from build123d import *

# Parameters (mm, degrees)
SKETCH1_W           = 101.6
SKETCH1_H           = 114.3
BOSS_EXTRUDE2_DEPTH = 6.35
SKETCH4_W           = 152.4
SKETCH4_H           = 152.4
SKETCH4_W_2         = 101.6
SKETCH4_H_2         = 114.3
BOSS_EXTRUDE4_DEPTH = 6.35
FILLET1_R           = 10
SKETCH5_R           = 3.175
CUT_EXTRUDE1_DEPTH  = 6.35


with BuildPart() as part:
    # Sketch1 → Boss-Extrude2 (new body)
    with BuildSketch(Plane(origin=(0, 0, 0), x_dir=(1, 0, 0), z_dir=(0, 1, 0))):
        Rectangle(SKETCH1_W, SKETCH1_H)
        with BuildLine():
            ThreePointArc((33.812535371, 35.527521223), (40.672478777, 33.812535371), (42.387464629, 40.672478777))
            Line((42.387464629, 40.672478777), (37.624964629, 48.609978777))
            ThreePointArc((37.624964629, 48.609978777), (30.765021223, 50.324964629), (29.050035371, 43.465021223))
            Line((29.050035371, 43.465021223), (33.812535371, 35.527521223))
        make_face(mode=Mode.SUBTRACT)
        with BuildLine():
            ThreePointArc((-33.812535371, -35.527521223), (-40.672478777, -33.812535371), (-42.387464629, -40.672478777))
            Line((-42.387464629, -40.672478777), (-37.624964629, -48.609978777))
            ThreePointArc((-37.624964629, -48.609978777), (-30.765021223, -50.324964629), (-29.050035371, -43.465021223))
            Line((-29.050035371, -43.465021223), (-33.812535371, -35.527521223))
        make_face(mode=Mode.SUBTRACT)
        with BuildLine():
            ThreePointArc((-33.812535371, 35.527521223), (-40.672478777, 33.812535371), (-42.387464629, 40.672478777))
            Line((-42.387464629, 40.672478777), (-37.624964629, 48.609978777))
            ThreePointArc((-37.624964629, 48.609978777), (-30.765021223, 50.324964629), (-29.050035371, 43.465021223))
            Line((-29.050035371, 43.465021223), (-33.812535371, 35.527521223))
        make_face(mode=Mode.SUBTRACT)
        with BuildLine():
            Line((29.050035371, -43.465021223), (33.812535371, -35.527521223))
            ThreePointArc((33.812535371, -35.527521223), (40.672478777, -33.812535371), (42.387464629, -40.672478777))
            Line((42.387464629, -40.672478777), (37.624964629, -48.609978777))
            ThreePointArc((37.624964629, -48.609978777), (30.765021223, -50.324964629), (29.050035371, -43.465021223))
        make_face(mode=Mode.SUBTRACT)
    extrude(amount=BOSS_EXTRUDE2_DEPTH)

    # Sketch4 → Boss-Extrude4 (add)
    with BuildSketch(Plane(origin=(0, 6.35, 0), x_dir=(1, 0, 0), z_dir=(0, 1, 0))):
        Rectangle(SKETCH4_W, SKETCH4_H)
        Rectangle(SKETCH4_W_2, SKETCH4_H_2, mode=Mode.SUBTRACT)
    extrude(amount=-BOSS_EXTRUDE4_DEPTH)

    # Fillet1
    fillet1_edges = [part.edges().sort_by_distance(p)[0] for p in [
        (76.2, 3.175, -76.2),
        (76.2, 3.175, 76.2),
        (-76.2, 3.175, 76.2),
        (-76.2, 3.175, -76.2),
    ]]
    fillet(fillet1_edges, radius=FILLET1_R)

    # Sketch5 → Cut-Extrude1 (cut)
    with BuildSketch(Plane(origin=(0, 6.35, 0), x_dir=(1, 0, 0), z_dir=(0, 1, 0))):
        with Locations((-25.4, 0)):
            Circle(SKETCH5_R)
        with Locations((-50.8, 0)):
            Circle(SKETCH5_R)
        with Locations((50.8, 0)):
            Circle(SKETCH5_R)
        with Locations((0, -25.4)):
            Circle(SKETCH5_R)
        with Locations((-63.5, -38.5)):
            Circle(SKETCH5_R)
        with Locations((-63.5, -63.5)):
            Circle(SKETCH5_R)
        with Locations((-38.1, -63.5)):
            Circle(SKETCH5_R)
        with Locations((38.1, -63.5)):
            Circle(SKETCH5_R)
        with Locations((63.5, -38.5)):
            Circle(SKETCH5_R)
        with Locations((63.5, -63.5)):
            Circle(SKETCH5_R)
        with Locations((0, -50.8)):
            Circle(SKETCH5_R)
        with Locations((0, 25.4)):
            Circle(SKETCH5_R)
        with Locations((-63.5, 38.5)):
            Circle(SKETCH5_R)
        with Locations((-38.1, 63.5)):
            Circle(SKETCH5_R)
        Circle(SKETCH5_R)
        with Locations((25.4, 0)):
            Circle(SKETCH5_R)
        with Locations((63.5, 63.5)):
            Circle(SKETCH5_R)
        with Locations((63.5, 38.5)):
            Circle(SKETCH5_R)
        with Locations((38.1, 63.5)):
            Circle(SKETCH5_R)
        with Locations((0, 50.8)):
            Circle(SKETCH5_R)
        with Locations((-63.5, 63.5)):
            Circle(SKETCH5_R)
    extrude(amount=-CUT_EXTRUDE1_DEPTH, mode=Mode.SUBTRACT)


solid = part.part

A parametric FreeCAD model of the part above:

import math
import FreeCAD as App
import Part
import Sketcher
from FreeCAD import Vector
Q = App.Units.Quantity


def edges_at(feature, points):
    """Names of the edges that pass closest to the given points."""
    edges = feature.Shape.Edges
    near = lambda p: min(range(len(edges)), key=lambda i: edges[i].distToShape(Part.Vertex(*p))[0])
    return sorted({f"Edge{near(p) + 1}" for p in points})

doc = App.newDocument("Part")
body = doc.addObject("PartDesign::Body", "Body")

# Sketch on XZ plane
sketch1 = body.newObject("Sketcher::SketchObject", "Sketch")
sketch1.AttachmentSupport = (doc.getObject("XZ_Plane"), [""])
sketch1.MapMode = "FlatFace"
sketch1.addGeometry([
    Part.LineSegment(Vector(-51, -57, 0), Vector(-51, 57, 0)),  # 0
    Part.LineSegment(Vector(-51, 57, 0), Vector(51, 57, 0)),  # 1
    Part.LineSegment(Vector(51, 57, 0), Vector(51, -57, 0)),  # 2
    Part.LineSegment(Vector(51, -57, 0), Vector(-51, -57, 0)),  # 3
    Part.ArcOfCircle(Part.Circle(Vector(-38, 38, 0), Vector(0, 0, 1), 5), math.radians(149), math.radians(329)),  # 4
    Part.LineSegment(Vector(-34, 36, 0), Vector(-29, 43, 0)),  # 5
    Part.ArcOfCircle(Part.Circle(Vector(-33, 46, 0), Vector(0, 0, 1), 5), math.radians(-31), math.radians(149)),  # 6
    Part.LineSegment(Vector(-38, 49, 0), Vector(-42, 41, 0)),  # 7
    Part.ArcOfCircle(Part.Circle(Vector(33, 46, 0), Vector(0, 0, 1), 5), math.radians(31), math.radians(211)),  # 8
    Part.LineSegment(Vector(29, 43, 0), Vector(34, 36, 0)),  # 9
    Part.ArcOfCircle(Part.Circle(Vector(38, 38, 0), Vector(0, 0, 1), 5), math.radians(-149), math.radians(31)),  # 10
    Part.LineSegment(Vector(42, 41, 0), Vector(38, 49, 0)),  # 11
    Part.LineSegment(Vector(-29, -43, 0), Vector(-34, -36, 0)),  # 12
    Part.ArcOfCircle(Part.Circle(Vector(-38, -38, 0), Vector(0, 0, 1), 5), math.radians(31), math.radians(211)),  # 13
    Part.LineSegment(Vector(-42, -41, 0), Vector(-38, -49, 0)),  # 14
    Part.ArcOfCircle(Part.Circle(Vector(-33, -46, 0), Vector(0, 0, 1), 5), math.radians(-149), math.radians(31)),  # 15
    Part.ArcOfCircle(Part.Circle(Vector(38, -38, 0), Vector(0, 0, 1), 5), math.radians(-31), math.radians(149)),  # 16
    Part.LineSegment(Vector(34, -36, 0), Vector(29, -43, 0)),  # 17
    Part.ArcOfCircle(Part.Circle(Vector(33, -46, 0), Vector(0, 0, 1), 5), math.radians(149), math.radians(329)),  # 18
    Part.LineSegment(Vector(38, -49, 0), Vector(42, -41, 0)),  # 19
], False)
sketch1.addConstraint([
    Sketcher.Constraint("Coincident", 0, 2, 1, 1),
    Sketcher.Constraint("Coincident", 1, 2, 2, 1),
    Sketcher.Constraint("Coincident", 2, 2, 3, 1),
    Sketcher.Constraint("Coincident", 3, 2, 0, 1),
    Sketcher.Constraint("Tangent", 4, 2, 5, 1),
    Sketcher.Constraint("Tangent", 5, 2, 6, 1),
    Sketcher.Constraint("Tangent", 6, 2, 7, 1),
    Sketcher.Constraint("Tangent", 7, 2, 4, 1),
    Sketcher.Constraint("Tangent", 8, 2, 9, 1),
    Sketcher.Constraint("Tangent", 9, 2, 10, 1),
    Sketcher.Constraint("Tangent", 10, 2, 11, 1),
    Sketcher.Constraint("Tangent", 11, 2, 8, 1),
    Sketcher.Constraint("Tangent", 12, 2, 13, 1),
    Sketcher.Constraint("Tangent", 13, 2, 14, 1),
    Sketcher.Constraint("Tangent", 14, 2, 15, 1),
    Sketcher.Constraint("Tangent", 15, 2, 12, 1),
    Sketcher.Constraint("Tangent", 16, 2, 17, 1),
    Sketcher.Constraint("Tangent", 17, 2, 18, 1),
    Sketcher.Constraint("Tangent", 18, 2, 19, 1),
    Sketcher.Constraint("Tangent", 19, 2, 16, 1),
    Sketcher.Constraint("Vertical", 0),
    Sketcher.Constraint("Horizontal", 1),
    Sketcher.Constraint("Vertical", 2),
    Sketcher.Constraint("Horizontal", 3),
    Sketcher.Constraint("Equal", 4, 6),
    Sketcher.Constraint("Equal", 6, 8),
    Sketcher.Constraint("Equal", 8, 10),
    Sketcher.Constraint("Equal", 10, 13),
    Sketcher.Constraint("Equal", 13, 15),
    Sketcher.Constraint("Equal", 15, 16),
    Sketcher.Constraint("Equal", 16, 18),
    Sketcher.Constraint("Symmetric", 10, 3, 13, 3, -1, 1),
    Sketcher.Constraint("Symmetric", 8, 3, 15, 3, -1, 1),
    Sketcher.Constraint("Symmetric", 4, 3, 16, 3, -1, 1),
    Sketcher.Constraint("Symmetric", 6, 3, 18, 3, -1, 1),
    Sketcher.Constraint("Symmetric", 0, 2, 2, 2, -1, 1),
    Sketcher.Constraint("Symmetric", 6, 3, 8, 3, -2),
    Sketcher.Constraint("Symmetric", 4, 3, 10, 3, -2),
    Sketcher.Constraint("DistanceX", 1, 1, 1, 2, Q("4 in")),
    Sketcher.Constraint("DistanceY", 0, 1, 0, 2, Q("4.5 in")),
    Sketcher.Constraint("DistanceX", 4, 3, 10, 3, Q("3 in")),
    Sketcher.Constraint("DistanceY", 13, 3, 4, 3, Q("3 in")),
    Sketcher.Constraint("Radius", 4, 5.0),
    Sketcher.Constraint("DistanceX", 6, 3, -1, 1, Q("1.3125 in")),
    Sketcher.Constraint("DistanceY", -1, 1, 6, 3, Q("1.8125 in")),
])
pad1 = body.newObject("PartDesign::Pad", "Pad")
pad1.Profile = sketch1
pad1.Length = Q("0.25 in")
pad1.Reversed = True

# Sketch on XZ plane
sketch2 = body.newObject("Sketcher::SketchObject", "Sketch001")
sketch2.AttachmentSupport = (doc.getObject("XZ_Plane"), [""])
sketch2.MapMode = "FlatFace"
sketch2.AttachmentOffset = App.Placement(Vector(0, 0, -0.25 * 25.4), App.Rotation())
sketch2.addGeometry([
    Part.LineSegment(Vector(-76, -76, 0), Vector(-76, 76, 0)),  # 0
    Part.LineSegment(Vector(-76, 76, 0), Vector(76, 76, 0)),  # 1
    Part.LineSegment(Vector(76, 76, 0), Vector(76, -76, 0)),  # 2
    Part.LineSegment(Vector(76, -76, 0), Vector(-76, -76, 0)),  # 3
    Part.LineSegment(Vector(51, 57, 0), Vector(-51, 57, 0)),  # 4
    Part.LineSegment(Vector(-51, 57, 0), Vector(-51, -57, 0)),  # 5
    Part.LineSegment(Vector(-51, -57, 0), Vector(51, -57, 0)),  # 6
    Part.LineSegment(Vector(51, -57, 0), Vector(51, 57, 0)),  # 7
], False)
sketch2.addConstraint([
    Sketcher.Constraint("Coincident", 0, 2, 1, 1),
    Sketcher.Constraint("Coincident", 1, 2, 2, 1),
    Sketcher.Constraint("Coincident", 2, 2, 3, 1),
    Sketcher.Constraint("Coincident", 3, 2, 0, 1),
    Sketcher.Constraint("Coincident", 4, 2, 5, 1),
    Sketcher.Constraint("Coincident", 5, 2, 6, 1),
    Sketcher.Constraint("Coincident", 6, 2, 7, 1),
    Sketcher.Constraint("Coincident", 7, 2, 4, 1),
    Sketcher.Constraint("Vertical", 0),
    Sketcher.Constraint("Horizontal", 1),
    Sketcher.Constraint("Vertical", 2),
    Sketcher.Constraint("Horizontal", 3),
    Sketcher.Constraint("Horizontal", 4),
    Sketcher.Constraint("Vertical", 5),
    Sketcher.Constraint("Horizontal", 6),
    Sketcher.Constraint("Vertical", 7),
    Sketcher.Constraint("Symmetric", 0, 2, 2, 2, -1, 1),
    Sketcher.Constraint("Symmetric", 4, 2, 6, 2, -1, 1),
    Sketcher.Constraint("Equal", 3, 0),
    Sketcher.Constraint("DistanceX", 1, 1, 1, 2, Q("6 in")),
    Sketcher.Constraint("DistanceX", 4, 2, 4, 1, Q("4 in")),
    Sketcher.Constraint("DistanceY", 5, 2, 5, 1, Q("4.5 in")),
])
pad2 = body.newObject("PartDesign::Pad", "Pad001")
pad2.Profile = sketch2
pad2.Length = Q("0.25 in")
doc.recompute()

fillet = body.newObject("PartDesign::Fillet", "Fillet")
fillet.Base = (pad2, edges_at(pad2, [
    (76.2, 3.175, -76.2),
    (76.2, 3.175, 76.2),
    (-76.2, 3.175, 76.2),
    (-76.2, 3.175, -76.2),
]))
fillet.Radius = 10

# Sketch on XZ plane
sketch3 = body.newObject("Sketcher::SketchObject", "Sketch002")
sketch3.AttachmentSupport = (doc.getObject("XZ_Plane"), [""])
sketch3.MapMode = "FlatFace"
sketch3.AttachmentOffset = App.Placement(Vector(0, 0, -0.25 * 25.4), App.Rotation())
sketch3.addGeometry([
    Part.Circle(Vector(-25.4, 0, 0), Vector(0, 0, 1), 3.2),  # 0
    Part.Circle(Vector(-50.8, 0, 0), Vector(0, 0, 1), 3.2),  # 1
    Part.Circle(Vector(50.8, 0, 0), Vector(0, 0, 1), 3.2),  # 2
    Part.Circle(Vector(0, 25.4, 0), Vector(0, 0, 1), 3.2),  # 3
    Part.Circle(Vector(-63.5, 38.5, 0), Vector(0, 0, 1), 3.2),  # 4
    Part.Circle(Vector(-63.5, 63.5, 0), Vector(0, 0, 1), 3.2),  # 5
    Part.Circle(Vector(-38.1, 63.5, 0), Vector(0, 0, 1), 3.2),  # 6
    Part.Circle(Vector(38.1, 63.5, 0), Vector(0, 0, 1), 3.2),  # 7
    Part.Circle(Vector(63.5, 38.5, 0), Vector(0, 0, 1), 3.2),  # 8
    Part.Circle(Vector(63.5, 63.5, 0), Vector(0, 0, 1), 3.2),  # 9
    Part.Circle(Vector(0, 50.8, 0), Vector(0, 0, 1), 3.2),  # 10
    Part.Circle(Vector(0, -25.4, 0), Vector(0, 0, 1), 3.2),  # 11
    Part.Circle(Vector(-63.5, -38.5, 0), Vector(0, 0, 1), 3.2),  # 12
    Part.Circle(Vector(-38.1, -63.5, 0), Vector(0, 0, 1), 3.2),  # 13
    Part.Circle(Vector(0, 0, 0), Vector(0, 0, 1), 3.2),  # 14
    Part.Circle(Vector(25.4, 0, 0), Vector(0, 0, 1), 3.2),  # 15
    Part.Circle(Vector(63.5, -63.5, 0), Vector(0, 0, 1), 3.2),  # 16
    Part.Circle(Vector(63.5, -38.5, 0), Vector(0, 0, 1), 3.2),  # 17
    Part.Circle(Vector(38.1, -63.5, 0), Vector(0, 0, 1), 3.2),  # 18
    Part.Circle(Vector(0, -50.8, 0), Vector(0, 0, 1), 3.2),  # 19
    Part.Circle(Vector(-63.5, -63.5, 0), Vector(0, 0, 1), 3.2),  # 20
], False)
sketch3.addConstraint([
    Sketcher.Constraint("Coincident", 14, 3, -1, 1),
    Sketcher.Constraint("Equal", 0, 1),
    Sketcher.Constraint("Equal", 1, 2),
    Sketcher.Constraint("Equal", 2, 3),
    Sketcher.Constraint("Equal", 3, 4),
    Sketcher.Constraint("Equal", 4, 5),
    Sketcher.Constraint("Equal", 5, 6),
    Sketcher.Constraint("Equal", 6, 7),
    Sketcher.Constraint("Equal", 7, 8),
    Sketcher.Constraint("Equal", 8, 9),
    Sketcher.Constraint("Equal", 9, 10),
    Sketcher.Constraint("Equal", 10, 11),
    Sketcher.Constraint("Equal", 11, 12),
    Sketcher.Constraint("Equal", 12, 13),
    Sketcher.Constraint("Equal", 13, 14),
    Sketcher.Constraint("Equal", 14, 15),
    Sketcher.Constraint("Equal", 15, 16),
    Sketcher.Constraint("Equal", 16, 17),
    Sketcher.Constraint("Equal", 17, 18),
    Sketcher.Constraint("Equal", 18, 19),
    Sketcher.Constraint("Equal", 19, 20),
    Sketcher.Constraint("Symmetric", 1, 3, 2, 3, -1, 1),
    Sketcher.Constraint("Symmetric", 3, 3, 11, 3, -1, 1),
    Sketcher.Constraint("Symmetric", 8, 3, 12, 3, -1, 1),
    Sketcher.Constraint("Symmetric", 7, 3, 13, 3, -1, 1),
    Sketcher.Constraint("Symmetric", 0, 3, 15, 3, -1, 1),
    Sketcher.Constraint("Symmetric", 5, 3, 16, 3, -1, 1),
    Sketcher.Constraint("Symmetric", 4, 3, 17, 3, -1, 1),
    Sketcher.Constraint("Symmetric", 6, 3, 18, 3, -1, 1),
    Sketcher.Constraint("Symmetric", 10, 3, 19, 3, -1, 1),
    Sketcher.Constraint("Symmetric", 9, 3, 20, 3, -1, 1),
    Sketcher.Constraint("Symmetric", 6, 3, 7, 3, -2),
    Sketcher.Constraint("Symmetric", 4, 3, 8, 3, -2),
    Sketcher.Constraint("Symmetric", 5, 3, 9, 3, -2),
    Sketcher.Constraint("PointOnObject", 0, 3, -1),
    Sketcher.Constraint("PointOnObject", 1, 3, -1),
    Sketcher.Constraint("PointOnObject", 3, 3, -2),
    Sketcher.Constraint("PointOnObject", 10, 3, -2),
    Sketcher.Constraint("Horizontal", 5, 3, 6, 3),
    Sketcher.Constraint("Vertical", 4, 3, 5, 3),
    Sketcher.Constraint("Diameter", 0, Q("0.25 in")),
    Sketcher.Constraint("DistanceX", 0, 3, -1, 1, Q("1 in")),
    Sketcher.Constraint("DistanceX", 1, 3, -1, 1, Q("2 in")),
    Sketcher.Constraint("DistanceY", -1, 1, 3, 3, Q("1 in")),
    Sketcher.Constraint("DistanceY", -1, 1, 10, 3, Q("2 in")),
    Sketcher.Constraint("DistanceX", 5, 3, 6, 3, Q("1 in")),
    Sketcher.Constraint("DistanceX", 6, 3, 7, 3, Q("3 in")),
    Sketcher.Constraint("DistanceY", -1, 1, 5, 3, Q("2.5 in")),
    Sketcher.Constraint("DistanceY", -1, 1, 4, 3, 38.5),
])
pocket1 = body.newObject("PartDesign::Pocket", "Pocket")
pocket1.Profile = sketch3
pocket1.Length = Q("0.25 in")
pocket1.Reversed = True

doc.recompute()
